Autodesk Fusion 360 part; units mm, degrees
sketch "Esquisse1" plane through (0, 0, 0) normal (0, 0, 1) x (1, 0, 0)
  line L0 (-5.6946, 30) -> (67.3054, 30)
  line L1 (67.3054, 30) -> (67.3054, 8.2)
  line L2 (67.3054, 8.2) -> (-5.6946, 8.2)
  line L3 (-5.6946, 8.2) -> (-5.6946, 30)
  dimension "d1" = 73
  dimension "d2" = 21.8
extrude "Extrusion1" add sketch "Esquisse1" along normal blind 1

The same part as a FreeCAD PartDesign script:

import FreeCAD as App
import Part
import Sketcher


def add_polygon(sketch, points):
    """Adds a closed chain of lines whose ends are joined by coincident constraints."""
    first, n = sketch.GeometryCount, len(points)
    for a, b in zip(points, points[1:] + points[:1]):
        sketch.addGeometry(Part.LineSegment(App.Vector(*a, 0), App.Vector(*b, 0)), False)
    for i in range(n):
        sketch.addConstraint(Sketcher.Constraint("Coincident", first + i, 2, first + (i + 1) % n, 1))

doc = App.newDocument("Part")
params = doc.addObject("Spreadsheet::Sheet", "Params")
for row, (alias, value) in enumerate([
    ("sketch1_width", "73 mm"),
    ("sketch1_height", "21.8 mm"),
    ("pad1_length", "1 mm"),
], start=1):
    params.set(f"A{row}", alias)
    params.set(f"B{row}", "=" + value)
    params.setAlias(f"B{row}", alias)

body = doc.addObject("PartDesign::Body", "Body")

# Sketch on XY plane
sketch1 = body.newObject("Sketcher::SketchObject", "Sketch")
sketch1.AttachmentSupport = (doc.getObject("XY_Plane"), [""])
sketch1.MapMode = "FlatFace"
add_polygon(sketch1, [(67, 30), (-6, 30), (-6, 8), (67, 8)])  # lines 0-3
sketch1.addConstraint(Sketcher.Constraint("Horizontal", 0))
sketch1.addConstraint(Sketcher.Constraint("Vertical", 1))
sketch1.addConstraint(Sketcher.Constraint("Horizontal", 2))
sketch1.addConstraint(Sketcher.Constraint("Vertical", 3))
sketch1.addConstraint(Sketcher.Constraint("DistanceX", 0, 2, 0, 1, 73.0))
sketch1.addConstraint(Sketcher.Constraint("DistanceY", 1, 2, 1, 1, 21.8))
sketch1.addConstraint(Sketcher.Constraint("DistanceY", -1, 1, 0, 2, 30.0))
sketch1.addConstraint(Sketcher.Constraint("DistanceX", 0, 2, -1, 1, 5.6946))
sketch1.setExpression("Constraints[8]", "Params.sketch1_width")
sketch1.setExpression("Constraints[9]", "Params.sketch1_height")
pad1 = body.newObject("PartDesign::Pad", "Pad")
pad1.Profile = sketch1
pad1.setExpression("Length", "Params.pad1_length")

doc.recompute()
